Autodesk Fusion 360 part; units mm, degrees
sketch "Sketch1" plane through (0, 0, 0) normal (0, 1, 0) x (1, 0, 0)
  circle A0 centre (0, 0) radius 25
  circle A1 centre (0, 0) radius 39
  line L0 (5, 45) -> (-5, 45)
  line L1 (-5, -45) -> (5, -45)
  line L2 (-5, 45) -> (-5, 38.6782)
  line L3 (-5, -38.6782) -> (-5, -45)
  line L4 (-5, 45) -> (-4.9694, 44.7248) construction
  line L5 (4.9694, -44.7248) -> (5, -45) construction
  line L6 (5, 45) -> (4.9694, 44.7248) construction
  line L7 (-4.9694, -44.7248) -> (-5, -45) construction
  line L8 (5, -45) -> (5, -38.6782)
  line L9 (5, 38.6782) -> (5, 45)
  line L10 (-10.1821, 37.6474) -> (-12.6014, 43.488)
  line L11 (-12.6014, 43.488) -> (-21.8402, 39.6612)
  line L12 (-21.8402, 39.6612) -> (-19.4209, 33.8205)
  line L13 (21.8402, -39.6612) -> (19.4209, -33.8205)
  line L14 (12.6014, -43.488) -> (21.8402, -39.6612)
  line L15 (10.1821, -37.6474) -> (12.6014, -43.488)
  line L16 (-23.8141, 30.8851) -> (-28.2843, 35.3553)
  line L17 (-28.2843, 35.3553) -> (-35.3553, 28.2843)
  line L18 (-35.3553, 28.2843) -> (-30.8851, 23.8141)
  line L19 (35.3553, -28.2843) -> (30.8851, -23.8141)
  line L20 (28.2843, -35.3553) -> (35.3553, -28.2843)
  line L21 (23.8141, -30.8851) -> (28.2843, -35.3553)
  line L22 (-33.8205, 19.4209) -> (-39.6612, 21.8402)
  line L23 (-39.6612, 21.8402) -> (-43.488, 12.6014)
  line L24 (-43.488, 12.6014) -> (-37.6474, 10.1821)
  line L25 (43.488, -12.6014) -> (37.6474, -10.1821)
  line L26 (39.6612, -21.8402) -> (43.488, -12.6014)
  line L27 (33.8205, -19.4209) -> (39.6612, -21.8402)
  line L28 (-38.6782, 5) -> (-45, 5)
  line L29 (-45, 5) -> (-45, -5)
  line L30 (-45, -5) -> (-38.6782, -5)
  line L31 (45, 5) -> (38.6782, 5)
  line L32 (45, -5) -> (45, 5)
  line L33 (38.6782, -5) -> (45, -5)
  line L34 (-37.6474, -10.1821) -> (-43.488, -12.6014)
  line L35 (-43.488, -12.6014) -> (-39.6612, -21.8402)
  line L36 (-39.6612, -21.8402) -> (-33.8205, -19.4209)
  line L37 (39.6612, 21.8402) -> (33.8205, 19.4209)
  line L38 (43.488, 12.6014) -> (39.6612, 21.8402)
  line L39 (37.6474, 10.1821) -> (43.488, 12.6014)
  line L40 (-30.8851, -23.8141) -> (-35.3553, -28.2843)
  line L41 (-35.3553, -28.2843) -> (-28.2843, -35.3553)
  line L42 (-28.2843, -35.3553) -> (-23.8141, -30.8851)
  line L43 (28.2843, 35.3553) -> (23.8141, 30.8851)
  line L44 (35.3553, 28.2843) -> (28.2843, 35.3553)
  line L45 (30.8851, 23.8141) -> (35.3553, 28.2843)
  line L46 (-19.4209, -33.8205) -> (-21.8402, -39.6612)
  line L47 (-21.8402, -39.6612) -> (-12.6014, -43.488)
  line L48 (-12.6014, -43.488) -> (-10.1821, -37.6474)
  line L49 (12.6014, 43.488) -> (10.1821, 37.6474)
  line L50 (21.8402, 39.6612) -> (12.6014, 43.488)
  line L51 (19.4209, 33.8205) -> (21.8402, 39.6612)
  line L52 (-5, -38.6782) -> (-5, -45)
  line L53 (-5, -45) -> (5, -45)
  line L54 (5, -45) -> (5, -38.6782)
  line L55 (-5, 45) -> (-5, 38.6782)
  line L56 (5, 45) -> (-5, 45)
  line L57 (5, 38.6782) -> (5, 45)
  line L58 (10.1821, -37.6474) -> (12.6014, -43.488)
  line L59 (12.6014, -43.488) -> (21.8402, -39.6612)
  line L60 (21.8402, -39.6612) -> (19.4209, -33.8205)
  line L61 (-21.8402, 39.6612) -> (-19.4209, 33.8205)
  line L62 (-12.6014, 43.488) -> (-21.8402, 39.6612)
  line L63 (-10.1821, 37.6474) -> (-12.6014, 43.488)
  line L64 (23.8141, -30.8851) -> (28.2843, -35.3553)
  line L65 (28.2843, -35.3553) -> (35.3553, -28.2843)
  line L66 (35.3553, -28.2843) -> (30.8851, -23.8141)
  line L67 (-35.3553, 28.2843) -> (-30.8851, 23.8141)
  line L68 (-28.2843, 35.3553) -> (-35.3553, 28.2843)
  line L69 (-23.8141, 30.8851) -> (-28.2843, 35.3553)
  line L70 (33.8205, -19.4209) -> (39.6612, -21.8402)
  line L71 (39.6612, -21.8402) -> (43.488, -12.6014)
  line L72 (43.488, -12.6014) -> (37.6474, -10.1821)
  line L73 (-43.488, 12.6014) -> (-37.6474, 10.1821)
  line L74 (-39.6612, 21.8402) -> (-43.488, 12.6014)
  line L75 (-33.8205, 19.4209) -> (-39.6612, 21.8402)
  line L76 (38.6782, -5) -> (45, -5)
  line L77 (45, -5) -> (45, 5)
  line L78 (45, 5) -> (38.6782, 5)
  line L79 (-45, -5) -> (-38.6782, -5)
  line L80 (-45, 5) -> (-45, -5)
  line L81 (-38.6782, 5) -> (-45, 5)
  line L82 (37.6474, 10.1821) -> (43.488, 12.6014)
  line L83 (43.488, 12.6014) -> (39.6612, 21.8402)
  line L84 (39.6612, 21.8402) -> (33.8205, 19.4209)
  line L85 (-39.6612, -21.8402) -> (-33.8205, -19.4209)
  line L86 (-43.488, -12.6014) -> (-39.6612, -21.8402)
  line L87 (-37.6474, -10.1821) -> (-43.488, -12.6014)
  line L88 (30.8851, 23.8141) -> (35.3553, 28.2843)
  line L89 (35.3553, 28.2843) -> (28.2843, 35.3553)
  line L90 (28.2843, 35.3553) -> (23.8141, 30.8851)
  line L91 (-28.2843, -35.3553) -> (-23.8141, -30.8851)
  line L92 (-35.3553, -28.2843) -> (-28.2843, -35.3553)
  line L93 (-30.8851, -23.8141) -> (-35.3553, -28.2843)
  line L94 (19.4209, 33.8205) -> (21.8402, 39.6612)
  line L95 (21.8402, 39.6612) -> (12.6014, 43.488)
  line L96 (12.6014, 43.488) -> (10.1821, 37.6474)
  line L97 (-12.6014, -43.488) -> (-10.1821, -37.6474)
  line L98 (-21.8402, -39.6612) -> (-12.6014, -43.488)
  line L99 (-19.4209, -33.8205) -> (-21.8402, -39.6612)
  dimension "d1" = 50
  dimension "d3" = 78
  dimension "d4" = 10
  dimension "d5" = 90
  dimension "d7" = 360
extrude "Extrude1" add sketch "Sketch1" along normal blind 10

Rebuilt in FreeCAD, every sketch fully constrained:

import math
import FreeCAD as App
import Part
import Sketcher

V = App.Vector
Q = App.Units.Quantity

doc = App.newDocument("Part")
body = doc.addObject("PartDesign::Body", "Body")

sketch1 = body.newObject("Sketcher::SketchObject", "Sketch")
sketch1.AttachmentSupport = (doc.getObject("XZ_Plane"), [""])
sketch1.MapMode = "FlatFace"
sketch1.addGeometry([
    Part.ArcOfCircle(Part.Circle(V(0, 0, 0), V(0, 0, 1), 39), math.radians(7.37), math.radians(15.13)),
    Part.LineSegment(V(39, 5, 0), V(45, 5, 0)),
    Part.LineSegment(V(45, 5, 0), V(45, -5, 0)),
    Part.LineSegment(V(45, -5, 0), V(39, -5, 0)),
    Part.ArcOfCircle(Part.Circle(V(0, 0, 0), V(0, 0, 1), 39), math.radians(-15.13), math.radians(-7.37)),
    Part.LineSegment(V(38, -10, 0), V(43, -13, 0)),
    Part.LineSegment(V(43, -13, 0), V(40, -22, 0)),
    Part.LineSegment(V(40, -22, 0), V(34, -19, 0)),
    Part.ArcOfCircle(Part.Circle(V(0, 0, 0), V(0, 0, 1), 39), math.radians(-37.63), math.radians(-29.87)),
    Part.LineSegment(V(31, -24, 0), V(35, -28, 0)),
    Part.LineSegment(V(35, -28, 0), V(28, -35, 0)),
    Part.LineSegment(V(28, -35, 0), V(24, -31, 0)),
    Part.ArcOfCircle(Part.Circle(V(0, 0, 0), V(0, 0, 1), 39), math.radians(-60.13), math.radians(-52.37)),
    Part.LineSegment(V(19, -34, 0), V(22, -40, 0)),
    Part.LineSegment(V(22, -40, 0), V(13, -43, 0)),
    Part.LineSegment(V(13, -43, 0), V(10, -38, 0)),
    Part.ArcOfCircle(Part.Circle(V(0, 0, 0), V(0, 0, 1), 39), math.radians(-82.63), math.radians(-74.87)),
    Part.LineSegment(V(5, -39, 0), V(5, -45, 0)),
    Part.LineSegment(V(5, -45, 0), V(-5, -45, 0)),
    Part.LineSegment(V(-5, -45, 0), V(-5, -39, 0)),
    Part.ArcOfCircle(Part.Circle(V(0, 0, 0), V(0, 0, 1), 39), math.radians(-105.13), math.radians(-97.37)),
    Part.LineSegment(V(-10, -38, 0), V(-13, -43, 0)),
    Part.LineSegment(V(-13, -43, 0), V(-22, -40, 0)),
    Part.LineSegment(V(-22, -40, 0), V(-19, -34, 0)),
    Part.ArcOfCircle(Part.Circle(V(0, 0, 0), V(0, 0, 1), 39), math.radians(-127.63), math.radians(-119.87)),
    Part.LineSegment(V(-24, -31, 0), V(-28, -35, 0)),
    Part.LineSegment(V(-28, -35, 0), V(-35, -28, 0)),
    Part.LineSegment(V(-35, -28, 0), V(-31, -24, 0)),
    Part.ArcOfCircle(Part.Circle(V(0, 0, 0), V(0, 0, 1), 39), math.radians(-150.13), math.radians(-142.37)),
    Part.LineSegment(V(-34, -19, 0), V(-40, -22, 0)),
    Part.LineSegment(V(-40, -22, 0), V(-43, -13, 0)),
    Part.LineSegment(V(-43, -13, 0), V(-38, -10, 0)),
    Part.ArcOfCircle(Part.Circle(V(0, 0, 0), V(0, 0, 1), 39), math.radians(-172.63), math.radians(-164.87)),
    Part.LineSegment(V(-39, -5, 0), V(-45, -5, 0)),
    Part.LineSegment(V(-45, -5, 0), V(-45, 5, 0)),
    Part.LineSegment(V(-45, 5, 0), V(-39, 5, 0)),
    Part.ArcOfCircle(Part.Circle(V(0, 0, 0), V(0, 0, 1), 39), math.radians(164.87), math.radians(172.63)),
    Part.LineSegment(V(-38, 10, 0), V(-43, 13, 0)),
    Part.LineSegment(V(-43, 13, 0), V(-40, 22, 0)),
    Part.LineSegment(V(-40, 22, 0), V(-34, 19, 0)),
    Part.ArcOfCircle(Part.Circle(V(0, 0, 0), V(0, 0, 1), 39), math.radians(142.37), math.radians(150.13)),
    Part.LineSegment(V(-31, 24, 0), V(-35, 28, 0)),
    Part.LineSegment(V(-35, 28, 0), V(-28, 35, 0)),
    Part.LineSegment(V(-28, 35, 0), V(-24, 31, 0)),
    Part.ArcOfCircle(Part.Circle(V(0, 0, 0), V(0, 0, 1), 39), math.radians(119.87), math.radians(127.63)),
    Part.LineSegment(V(-19, 34, 0), V(-22, 40, 0)),
    Part.LineSegment(V(-22, 40, 0), V(-13, 43, 0)),
    Part.LineSegment(V(-13, 43, 0), V(-10, 38, 0)),
    Part.ArcOfCircle(Part.Circle(V(0, 0, 0), V(0, 0, 1), 39), math.radians(97.37), math.radians(105.13)),
    Part.LineSegment(V(-5, 39, 0), V(-5, 45, 0)),
    Part.LineSegment(V(-5, 45, 0), V(5, 45, 0)),
    Part.LineSegment(V(5, 45, 0), V(5, 39, 0)),
    Part.ArcOfCircle(Part.Circle(V(0, 0, 0), V(0, 0, 1), 39), math.radians(74.87), math.radians(82.63)),
    Part.LineSegment(V(10, 38, 0), V(13, 43, 0)),
    Part.LineSegment(V(13, 43, 0), V(22, 40, 0)),
    Part.LineSegment(V(22, 40, 0), V(19, 34, 0)),
    Part.ArcOfCircle(Part.Circle(V(0, 0, 0), V(0, 0, 1), 39), math.radians(52.37), math.radians(60.13)),
    Part.LineSegment(V(24, 31, 0), V(28, 35, 0)),
    Part.LineSegment(V(28, 35, 0), V(35, 28, 0)),
    Part.LineSegment(V(35, 28, 0), V(31, 24, 0)),
    Part.ArcOfCircle(Part.Circle(V(0, 0, 0), V(0, 0, 1), 39), math.radians(29.87), math.radians(37.63)),
    Part.LineSegment(V(34, 19, 0), V(40, 22, 0)),
    Part.LineSegment(V(40, 22, 0), V(43, 13, 0)),
    Part.LineSegment(V(43, 13, 0), V(38, 10, 0)),
    Part.Circle(V(0, 0, 0), V(0, 0, 1), 25),
], False)
sketch1.addConstraint([
    Sketcher.Constraint("Coincident", 0, 1, 1, 1),
    Sketcher.Constraint("Coincident", 1, 2, 2, 1),
    Sketcher.Constraint("Coincident", 2, 2, 3, 1),
    Sketcher.Constraint("Coincident", 3, 2, 4, 2),
    Sketcher.Constraint("Coincident", 4, 1, 5, 1),
    Sketcher.Constraint("Coincident", 5, 2, 6, 1),
    Sketcher.Constraint("Coincident", 6, 2, 7, 1),
    Sketcher.Constraint("Coincident", 7, 2, 8, 2),
    Sketcher.Constraint("Coincident", 8, 1, 9, 1),
    Sketcher.Constraint("Coincident", 9, 2, 10, 1),
    Sketcher.Constraint("Coincident", 10, 2, 11, 1),
    Sketcher.Constraint("Coincident", 11, 2, 12, 2),
    Sketcher.Constraint("Coincident", 12, 1, 13, 1),
    Sketcher.Constraint("Coincident", 13, 2, 14, 1),
    Sketcher.Constraint("Coincident", 14, 2, 15, 1),
    Sketcher.Constraint("Coincident", 15, 2, 16, 2),
    Sketcher.Constraint("Coincident", 16, 1, 17, 1),
    Sketcher.Constraint("Coincident", 17, 2, 18, 1),
    Sketcher.Constraint("Coincident", 18, 2, 19, 1),
    Sketcher.Constraint("Coincident", 19, 2, 20, 2),
    Sketcher.Constraint("Coincident", 20, 1, 21, 1),
    Sketcher.Constraint("Coincident", 21, 2, 22, 1),
    Sketcher.Constraint("Coincident", 22, 2, 23, 1),
    Sketcher.Constraint("Coincident", 23, 2, 24, 2),
    Sketcher.Constraint("Coincident", 24, 1, 25, 1),
    Sketcher.Constraint("Coincident", 25, 2, 26, 1),
    Sketcher.Constraint("Coincident", 26, 2, 27, 1),
    Sketcher.Constraint("Coincident", 27, 2, 28, 2),
    Sketcher.Constraint("Coincident", 28, 1, 29, 1),
    Sketcher.Constraint("Coincident", 29, 2, 30, 1),
    Sketcher.Constraint("Coincident", 30, 2, 31, 1),
    Sketcher.Constraint("Coincident", 31, 2, 32, 2),
    Sketcher.Constraint("Coincident", 32, 1, 33, 1),
    Sketcher.Constraint("Coincident", 33, 2, 34, 1),
    Sketcher.Constraint("Coincident", 34, 2, 35, 1),
    Sketcher.Constraint("Coincident", 35, 2, 36, 2),
    Sketcher.Constraint("Coincident", 36, 1, 37, 1),
    Sketcher.Constraint("Coincident", 37, 2, 38, 1),
    Sketcher.Constraint("Coincident", 38, 2, 39, 1),
    Sketcher.Constraint("Coincident", 39, 2, 40, 2),
    Sketcher.Constraint("Coincident", 40, 1, 41, 1),
    Sketcher.Constraint("Coincident", 41, 2, 42, 1),
    Sketcher.Constraint("Coincident", 42, 2, 43, 1),
    Sketcher.Constraint("Coincident", 43, 2, 44, 2),
    Sketcher.Constraint("Coincident", 44, 1, 45, 1),
    Sketcher.Constraint("Coincident", 45, 2, 46, 1),
    Sketcher.Constraint("Coincident", 46, 2, 47, 1),
    Sketcher.Constraint("Coincident", 47, 2, 48, 2),
    Sketcher.Constraint("Coincident", 48, 1, 49, 1),
    Sketcher.Constraint("Coincident", 49, 2, 50, 1),
    Sketcher.Constraint("Coincident", 50, 2, 51, 1),
    Sketcher.Constraint("Coincident", 51, 2, 52, 2),
    Sketcher.Constraint("Coincident", 52, 1, 53, 1),
    Sketcher.Constraint("Coincident", 53, 2, 54, 1),
    Sketcher.Constraint("Coincident", 54, 2, 55, 1),
    Sketcher.Constraint("Coincident", 55, 2, 56, 2),
    Sketcher.Constraint("Coincident", 56, 1, 57, 1),
    Sketcher.Constraint("Coincident", 57, 2, 58, 1),
    Sketcher.Constraint("Coincident", 58, 2, 59, 1),
    Sketcher.Constraint("Coincident", 59, 2, 60, 2),
    Sketcher.Constraint("Coincident", 60, 1, 61, 1),
    Sketcher.Constraint("Coincident", 61, 2, 62, 1),
    Sketcher.Constraint("Coincident", 62, 2, 63, 1),
    Sketcher.Constraint("Coincident", 63, 2, 0, 2),
    Sketcher.Constraint("Horizontal", 1),
    Sketcher.Constraint("Vertical", 2),
    Sketcher.Constraint("Horizontal", 3),
    Sketcher.Constraint("Vertical", 17),
    Sketcher.Constraint("Horizontal", 18),
    Sketcher.Constraint("Vertical", 19),
    Sketcher.Constraint("Horizontal", 33),
    Sketcher.Constraint("Vertical", 34),
    Sketcher.Constraint("Horizontal", 35),
    Sketcher.Constraint("Vertical", 49),
    Sketcher.Constraint("Horizontal", 50),
    Sketcher.Constraint("Vertical", 51),
    Sketcher.Constraint("Coincident", 0, 3, -1, 1),
    Sketcher.Constraint("Coincident", 4, 3, -1, 1),
    Sketcher.Constraint("Coincident", 8, 3, -1, 1),
    Sketcher.Constraint("Coincident", 12, 3, -1, 1),
    Sketcher.Constraint("Coincident", 16, 3, -1, 1),
    Sketcher.Constraint("Coincident", 20, 3, -1, 1),
    Sketcher.Constraint("Coincident", 24, 3, -1, 1),
    Sketcher.Constraint("Coincident", 28, 3, -1, 1),
    Sketcher.Constraint("Coincident", 32, 3, -1, 1),
    Sketcher.Constraint("Coincident", 36, 3, -1, 1),
    Sketcher.Constraint("Coincident", 40, 3, -1, 1),
    Sketcher.Constraint("Coincident", 44, 3, -1, 1),
    Sketcher.Constraint("Coincident", 48, 3, -1, 1),
    Sketcher.Constraint("Coincident", 52, 3, -1, 1),
    Sketcher.Constraint("Coincident", 56, 3, -1, 1),
    Sketcher.Constraint("Coincident", 60, 3, -1, 1),
    Sketcher.Constraint("Coincident", 64, 3, -1, 1),
    Sketcher.Constraint("Equal", 0, 4),
    Sketcher.Constraint("Equal", 4, 8),
    Sketcher.Constraint("Equal", 8, 12),
    Sketcher.Constraint("Equal", 12, 16),
    Sketcher.Constraint("Equal", 16, 20),
    Sketcher.Constraint("Equal", 20, 24),
    Sketcher.Constraint("Equal", 24, 28),
    Sketcher.Constraint("Equal", 28, 32),
    Sketcher.Constraint("Equal", 32, 36),
    Sketcher.Constraint("Equal", 36, 40),
    Sketcher.Constraint("Equal", 40, 44),
    Sketcher.Constraint("Equal", 44, 48),
    Sketcher.Constraint("Equal", 48, 52),
    Sketcher.Constraint("Equal", 52, 56),
    Sketcher.Constraint("Equal", 56, 60),
    Sketcher.Constraint("Symmetric", 1, 2, 33, 2, -1, 1),
    Sketcher.Constraint("Symmetric", 5, 2, 37, 2, -1, 1),
    Sketcher.Constraint("Symmetric", 6, 2, 38, 2, -1, 1),
    Sketcher.Constraint("Symmetric", 9, 2, 41, 2, -1, 1),
    Sketcher.Constraint("Symmetric", 10, 2, 42, 2, -1, 1),
    Sketcher.Constraint("Symmetric", 13, 2, 45, 2, -1, 1),
    Sketcher.Constraint("Symmetric", 14, 2, 46, 2, -1, 1),
    Sketcher.Constraint("Symmetric", 17, 2, 49, 2, -1, 1),
    Sketcher.Constraint("Symmetric", 21, 2, 53, 2, -1, 1),
    Sketcher.Constraint("Symmetric", 22, 2, 54, 2, -1, 1),
    Sketcher.Constraint("Symmetric", 25, 2, 57, 2, -1, 1),
    Sketcher.Constraint("Symmetric", 26, 2, 58, 2, -1, 1),
    Sketcher.Constraint("Symmetric", 29, 2, 61, 2, -1, 1),
    Sketcher.Constraint("Symmetric", 30, 2, 62, 2, -1, 1),
    Sketcher.Constraint("Symmetric", 14, 2, 21, 2, -2),
    Sketcher.Constraint("Symmetric", 13, 2, 22, 2, -2),
    Sketcher.Constraint("Symmetric", 10, 2, 25, 2, -2),
    Sketcher.Constraint("Symmetric", 9, 2, 26, 2, -2),
    Sketcher.Constraint("Symmetric", 6, 2, 29, 2, -2),
    Sketcher.Constraint("Symmetric", 5, 2, 30, 2, -2),
    Sketcher.Constraint("Perpendicular", 5, 6),
    Sketcher.Constraint("Perpendicular", 6, 7),
    Sketcher.Constraint("Perpendicular", 9, 10),
    Sketcher.Constraint("Perpendicular", 10, 11),
    Sketcher.Constraint("Perpendicular", 13, 14),
    Sketcher.Constraint("Perpendicular", 14, 15),
    Sketcher.Constraint("Perpendicular", 7, 21),
    Sketcher.Constraint("Perpendicular", 21, 22),
    Sketcher.Constraint("Perpendicular", 22, 23),
    Sketcher.Constraint("Perpendicular", 11, 25),
    Sketcher.Constraint("Perpendicular", 25, 26),
    Sketcher.Constraint("Perpendicular", 26, 27),
    Sketcher.Constraint("Perpendicular", 15, 29),
    Sketcher.Constraint("Perpendicular", 30, 31),
    Sketcher.Constraint("Perpendicular", 23, 37),
    Sketcher.Constraint("Perpendicular", 38, 39),
    Sketcher.Constraint("Perpendicular", 27, 41),
    Sketcher.Constraint("Perpendicular", 42, 43),
    Sketcher.Constraint("Perpendicular", 31, 45),
    Sketcher.Constraint("Perpendicular", 46, 47),
    Sketcher.Constraint("Perpendicular", 39, 53),
    Sketcher.Constraint("Perpendicular", 54, 55),
    Sketcher.Constraint("Perpendicular", 43, 57),
    Sketcher.Constraint("Perpendicular", 58, 59),
    Sketcher.Constraint("Perpendicular", 47, 61),
    Sketcher.Constraint("Perpendicular", 62, 63),
    Sketcher.Constraint("Horizontal", 16, 1, 19, 2),
    Sketcher.Constraint("Horizontal", 3, 2, 32, 1),
    Sketcher.Constraint("Horizontal", 1, 2, 34, 2),
    Sketcher.Constraint("Horizontal", 48, 1, 51, 2),
    Sketcher.Constraint("Equal", 50, 2),
    Sketcher.Constraint("Equal", 35, 17),
    Sketcher.Constraint("Equal", 5, 7),
    Sketcher.Constraint("Equal", 7, 9),
    Sketcher.Constraint("Equal", 6, 10),
    Sketcher.Constraint("Equal", 9, 11),
    Sketcher.Constraint("Equal", 11, 13),
    Sketcher.Constraint("Equal", 10, 14),
    Sketcher.Constraint("Equal", 13, 15),
    Sketcher.Constraint("Diameter", 64, 50.0),
    Sketcher.Constraint("Radius", 0, 39.0),
    Sketcher.Constraint("DistanceX", 18, 2, 18, 1, 10.0),
    Sketcher.Constraint("Distance", 6, 10.0),
    Sketcher.Constraint("DistanceX", -1, 1, 1, 2, 45.0),
    Sketcher.Constraint("Angle", 5, Q("-22.5004 deg")),
    Sketcher.Constraint("Distance", 7, 6.322),
])
pad1 = body.newObject("PartDesign::Pad", "Pad")
pad1.Profile = sketch1
pad1.Length = 10
pad1.Reversed = True

doc.recompute()
